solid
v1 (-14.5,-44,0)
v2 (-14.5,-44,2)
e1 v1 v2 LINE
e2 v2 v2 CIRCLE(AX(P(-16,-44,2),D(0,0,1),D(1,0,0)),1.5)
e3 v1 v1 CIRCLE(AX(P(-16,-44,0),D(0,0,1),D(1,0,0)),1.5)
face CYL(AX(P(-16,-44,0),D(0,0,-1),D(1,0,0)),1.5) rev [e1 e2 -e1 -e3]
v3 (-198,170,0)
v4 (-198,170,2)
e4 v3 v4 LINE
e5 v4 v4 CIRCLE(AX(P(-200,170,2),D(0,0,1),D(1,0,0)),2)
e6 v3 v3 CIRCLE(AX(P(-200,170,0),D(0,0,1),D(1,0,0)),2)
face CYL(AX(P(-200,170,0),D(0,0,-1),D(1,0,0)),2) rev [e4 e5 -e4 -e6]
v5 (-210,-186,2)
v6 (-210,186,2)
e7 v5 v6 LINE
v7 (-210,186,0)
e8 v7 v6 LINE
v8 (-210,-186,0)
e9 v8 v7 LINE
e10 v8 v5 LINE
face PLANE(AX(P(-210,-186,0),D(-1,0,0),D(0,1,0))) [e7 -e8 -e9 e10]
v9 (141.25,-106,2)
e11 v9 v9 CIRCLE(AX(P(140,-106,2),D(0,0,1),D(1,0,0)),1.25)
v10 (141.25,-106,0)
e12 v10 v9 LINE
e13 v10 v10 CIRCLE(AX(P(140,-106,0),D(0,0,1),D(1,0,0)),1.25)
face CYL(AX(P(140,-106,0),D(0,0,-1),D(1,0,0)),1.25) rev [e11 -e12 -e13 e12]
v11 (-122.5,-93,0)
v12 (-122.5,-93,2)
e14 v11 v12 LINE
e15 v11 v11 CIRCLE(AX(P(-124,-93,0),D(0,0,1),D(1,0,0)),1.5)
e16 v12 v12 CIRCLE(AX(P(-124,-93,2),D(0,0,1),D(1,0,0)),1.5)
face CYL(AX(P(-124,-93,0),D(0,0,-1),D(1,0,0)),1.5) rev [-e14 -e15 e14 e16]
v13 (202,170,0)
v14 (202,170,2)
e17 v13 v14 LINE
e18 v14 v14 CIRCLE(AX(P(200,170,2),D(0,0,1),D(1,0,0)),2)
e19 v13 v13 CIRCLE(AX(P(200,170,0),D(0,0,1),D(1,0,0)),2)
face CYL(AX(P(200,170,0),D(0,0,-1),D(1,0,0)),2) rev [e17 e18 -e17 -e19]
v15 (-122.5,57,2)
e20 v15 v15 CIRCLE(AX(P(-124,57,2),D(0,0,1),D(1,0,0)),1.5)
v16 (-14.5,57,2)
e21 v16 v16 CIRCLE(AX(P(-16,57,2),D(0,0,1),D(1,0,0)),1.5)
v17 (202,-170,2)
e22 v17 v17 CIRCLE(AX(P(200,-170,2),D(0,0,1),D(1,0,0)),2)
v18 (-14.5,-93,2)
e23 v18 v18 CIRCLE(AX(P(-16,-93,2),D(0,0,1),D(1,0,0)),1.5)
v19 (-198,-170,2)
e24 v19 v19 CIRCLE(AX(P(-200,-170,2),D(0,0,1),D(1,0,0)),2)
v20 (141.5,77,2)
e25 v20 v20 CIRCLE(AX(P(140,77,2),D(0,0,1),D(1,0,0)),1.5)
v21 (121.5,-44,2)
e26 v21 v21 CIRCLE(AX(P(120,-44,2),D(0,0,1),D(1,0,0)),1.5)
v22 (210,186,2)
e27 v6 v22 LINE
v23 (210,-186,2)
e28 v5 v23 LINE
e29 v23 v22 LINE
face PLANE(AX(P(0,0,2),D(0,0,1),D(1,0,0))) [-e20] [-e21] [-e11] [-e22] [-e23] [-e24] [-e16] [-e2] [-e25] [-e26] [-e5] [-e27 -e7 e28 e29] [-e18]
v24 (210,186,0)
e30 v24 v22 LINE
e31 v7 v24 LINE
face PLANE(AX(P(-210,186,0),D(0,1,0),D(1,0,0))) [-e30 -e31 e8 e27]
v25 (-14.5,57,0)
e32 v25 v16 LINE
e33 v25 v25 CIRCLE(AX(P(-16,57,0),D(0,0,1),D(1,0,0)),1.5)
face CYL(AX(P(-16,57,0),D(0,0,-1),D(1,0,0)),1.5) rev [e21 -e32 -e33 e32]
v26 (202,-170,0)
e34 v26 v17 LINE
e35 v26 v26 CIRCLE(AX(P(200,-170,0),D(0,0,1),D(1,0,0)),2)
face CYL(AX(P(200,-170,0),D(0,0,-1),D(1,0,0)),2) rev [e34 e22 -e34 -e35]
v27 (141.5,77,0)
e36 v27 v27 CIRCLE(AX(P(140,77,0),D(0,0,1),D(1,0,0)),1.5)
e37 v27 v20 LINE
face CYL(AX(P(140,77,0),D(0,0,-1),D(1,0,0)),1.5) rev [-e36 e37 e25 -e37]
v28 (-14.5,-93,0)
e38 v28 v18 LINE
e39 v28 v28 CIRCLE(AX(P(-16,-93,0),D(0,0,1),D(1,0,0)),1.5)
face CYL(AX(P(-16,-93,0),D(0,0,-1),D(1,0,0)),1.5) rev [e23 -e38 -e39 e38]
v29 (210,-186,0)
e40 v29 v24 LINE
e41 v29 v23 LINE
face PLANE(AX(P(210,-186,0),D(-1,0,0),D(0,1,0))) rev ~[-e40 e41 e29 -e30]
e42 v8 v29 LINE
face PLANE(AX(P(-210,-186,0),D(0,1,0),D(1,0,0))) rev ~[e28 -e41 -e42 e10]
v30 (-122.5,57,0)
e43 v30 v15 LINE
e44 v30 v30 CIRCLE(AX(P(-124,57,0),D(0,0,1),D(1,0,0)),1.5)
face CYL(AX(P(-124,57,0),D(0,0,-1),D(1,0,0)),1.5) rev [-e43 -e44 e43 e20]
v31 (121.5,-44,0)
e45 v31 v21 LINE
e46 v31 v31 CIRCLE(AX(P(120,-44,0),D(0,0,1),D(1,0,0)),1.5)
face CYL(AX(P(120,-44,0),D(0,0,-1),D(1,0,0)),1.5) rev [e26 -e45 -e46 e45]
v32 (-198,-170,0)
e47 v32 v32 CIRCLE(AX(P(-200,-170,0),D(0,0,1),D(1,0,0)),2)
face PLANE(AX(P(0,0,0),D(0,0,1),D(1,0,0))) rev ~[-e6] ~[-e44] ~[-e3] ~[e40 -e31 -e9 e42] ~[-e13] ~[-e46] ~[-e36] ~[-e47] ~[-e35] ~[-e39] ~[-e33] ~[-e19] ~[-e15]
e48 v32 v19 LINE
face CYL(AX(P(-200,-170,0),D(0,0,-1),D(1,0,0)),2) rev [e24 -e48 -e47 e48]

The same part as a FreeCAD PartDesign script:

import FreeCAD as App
import Part
import Sketcher

V = App.Vector
Q = App.Units.Quantity

doc = App.newDocument("Part")
params = doc.addObject("Spreadsheet::Sheet", "Params")
for row, (alias, value) in enumerate([
    ("sketch1_diameter", "4 mm"),
    ("sketch1_diameter2", "3 mm"),
    ("sketch1_diameter3", "2.5 mm"),
    ("sketch1_width", "420 mm"),
    ("sketch1_height", "372 mm"),
    ("pad1_length", "2 mm"),
], start=1):
    params.set(f"A{row}", alias)
    params.set(f"B{row}", "=" + value)
    params.setAlias(f"B{row}", alias)

body = doc.addObject("PartDesign::Body", "Body")

# Sketch on XY plane
sketch1 = doc.addObject("Sketcher::SketchObject", "Sketch")
body.addObject(sketch1)
sketch1.AttachmentSupport = (doc.XY_Plane, [""])
sketch1.MapMode = "FlatFace"
sketch1.addGeometry(Part.LineSegment(V(-210, 186, 0), V(-210, -186, 0)), False)
sketch1.addGeometry(Part.LineSegment(V(-210, -186, 0), V(210, -186, 0)), False)
sketch1.addGeometry(Part.LineSegment(V(210, -186, 0), V(210, 186, 0)), False)
sketch1.addGeometry(Part.LineSegment(V(210, 186, 0), V(-210, 186, 0)), False)
sketch1.addGeometry(Part.Circle(V(-200, -170, 0), V(0, 0, 1), 2), False)
sketch1.addGeometry(Part.Circle(V(-124, -93, 0), V(0, 0, 1), 1.5), False)
sketch1.addGeometry(Part.Circle(V(-16, -93, 0), V(0, 0, 1), 1.5), False)
sketch1.addGeometry(Part.Circle(V(-16, -44, 0), V(0, 0, 1), 1.5), False)
sketch1.addGeometry(Part.Circle(V(200, -170, 0), V(0, 0, 1), 2), False)
sketch1.addGeometry(Part.Circle(V(140, -106, 0), V(0, 0, 1), 1.2), False)
sketch1.addGeometry(Part.Circle(V(120, -44, 0), V(0, 0, 1), 1.5), False)
sketch1.addGeometry(Part.Circle(V(-124, 57, 0), V(0, 0, 1), 1.5), False)
sketch1.addGeometry(Part.Circle(V(-16, 57, 0), V(0, 0, 1), 1.5), False)
sketch1.addGeometry(Part.Circle(V(-200, 170, 0), V(0, 0, 1), 2), False)
sketch1.addGeometry(Part.Circle(V(140, 77, 0), V(0, 0, 1), 1.5), False)
sketch1.addGeometry(Part.Circle(V(200, 170, 0), V(0, 0, 1), 2), False)
sketch1.addConstraint(Sketcher.Constraint("Coincident", 0, 2, 1, 1))
sketch1.addConstraint(Sketcher.Constraint("Coincident", 1, 2, 2, 1))
sketch1.addConstraint(Sketcher.Constraint("Coincident", 2, 2, 3, 1))
sketch1.addConstraint(Sketcher.Constraint("Coincident", 3, 2, 0, 1))
sketch1.addConstraint(Sketcher.Constraint("Vertical", 0))
sketch1.addConstraint(Sketcher.Constraint("Horizontal", 1))
sketch1.addConstraint(Sketcher.Constraint("Vertical", 2))
sketch1.addConstraint(Sketcher.Constraint("Horizontal", 3))
sketch1.addConstraint(Sketcher.Constraint("Equal", 5, 6))
sketch1.addConstraint(Sketcher.Constraint("Equal", 6, 7))
sketch1.addConstraint(Sketcher.Constraint("Equal", 4, 8))
sketch1.addConstraint(Sketcher.Constraint("Equal", 7, 10))
sketch1.addConstraint(Sketcher.Constraint("Equal", 10, 11))
sketch1.addConstraint(Sketcher.Constraint("Equal", 11, 12))
sketch1.addConstraint(Sketcher.Constraint("Equal", 8, 13))
sketch1.addConstraint(Sketcher.Constraint("Equal", 12, 14))
sketch1.addConstraint(Sketcher.Constraint("Equal", 13, 15))
sketch1.addConstraint(Sketcher.Constraint("Symmetric", 8, 3, 13, 3, -1, 1))
sketch1.addConstraint(Sketcher.Constraint("Symmetric", 4, 3, 15, 3, -1, 1))
sketch1.addConstraint(Sketcher.Constraint("Symmetric", 0, 2, 2, 2, -1, 1))
sketch1.addConstraint(Sketcher.Constraint("Symmetric", 4, 3, 8, 3, -2))
sketch1.addConstraint(Sketcher.Constraint("Horizontal", 5, 3, 6, 3))
sketch1.addConstraint(Sketcher.Constraint("Horizontal", 7, 3, 10, 3))
sketch1.addConstraint(Sketcher.Constraint("Horizontal", 11, 3, 12, 3))
sketch1.addConstraint(Sketcher.Constraint("Vertical", 6, 3, 7, 3))
sketch1.addConstraint(Sketcher.Constraint("Vertical", 5, 3, 11, 3))
sketch1.addConstraint(Sketcher.Constraint("Vertical", 7, 3, 12, 3))
sketch1.addConstraint(Sketcher.Constraint("Vertical", 9, 3, 14, 3))
sketch1.addConstraint(Sketcher.Constraint("Diameter", 4, Q("4 mm")))
sketch1.addConstraint(Sketcher.Constraint("Diameter", 5, Q("3 mm")))
sketch1.addConstraint(Sketcher.Constraint("Diameter", 9, Q("2.5 mm")))
sketch1.addConstraint(Sketcher.Constraint("DistanceX", 1, 1, 1, 2, Q("420 mm")))
sketch1.addConstraint(Sketcher.Constraint("DistanceY", 0, 2, 0, 1, Q("372 mm")))
sketch1.addConstraint(Sketcher.Constraint("DistanceX", 4, 3, -1, 1, Q("200 mm")))
sketch1.addConstraint(Sketcher.Constraint("DistanceY", 4, 3, -1, 1, Q("170 mm")))
sketch1.addConstraint(Sketcher.Constraint("DistanceX", 5, 3, -1, 1, Q("124 mm")))
sketch1.addConstraint(Sketcher.Constraint("DistanceY", 5, 3, -1, 1, Q("93 mm")))
sketch1.addConstraint(Sketcher.Constraint("DistanceX", 6, 3, -1, 1, Q("16 mm")))
sketch1.addConstraint(Sketcher.Constraint("DistanceY", 7, 3, -1, 1, Q("44 mm")))
sketch1.addConstraint(Sketcher.Constraint("DistanceX", -1, 1, 9, 3, Q("140 mm")))
sketch1.addConstraint(Sketcher.Constraint("DistanceY", 9, 3, -1, 1, Q("106 mm")))
sketch1.addConstraint(Sketcher.Constraint("DistanceX", -1, 1, 10, 3, Q("120 mm")))
sketch1.addConstraint(Sketcher.Constraint("DistanceY", -1, 1, 11, 3, Q("57 mm")))
sketch1.addConstraint(Sketcher.Constraint("DistanceY", -1, 1, 14, 3, Q("77 mm")))
sketch1.setExpression("Constraints[28]", "Params.sketch1_diameter")
sketch1.setExpression("Constraints[29]", "Params.sketch1_diameter2")
sketch1.setExpression("Constraints[30]", "Params.sketch1_diameter3")
sketch1.setExpression("Constraints[31]", "Params.sketch1_width")
sketch1.setExpression("Constraints[32]", "Params.sketch1_height")
pad1 = doc.addObject("PartDesign::Pad", "Pad")
body.addObject(pad1)
pad1.Profile = sketch1
pad1.setExpression("Length", "Params.pad1_length")

doc.recompute()
